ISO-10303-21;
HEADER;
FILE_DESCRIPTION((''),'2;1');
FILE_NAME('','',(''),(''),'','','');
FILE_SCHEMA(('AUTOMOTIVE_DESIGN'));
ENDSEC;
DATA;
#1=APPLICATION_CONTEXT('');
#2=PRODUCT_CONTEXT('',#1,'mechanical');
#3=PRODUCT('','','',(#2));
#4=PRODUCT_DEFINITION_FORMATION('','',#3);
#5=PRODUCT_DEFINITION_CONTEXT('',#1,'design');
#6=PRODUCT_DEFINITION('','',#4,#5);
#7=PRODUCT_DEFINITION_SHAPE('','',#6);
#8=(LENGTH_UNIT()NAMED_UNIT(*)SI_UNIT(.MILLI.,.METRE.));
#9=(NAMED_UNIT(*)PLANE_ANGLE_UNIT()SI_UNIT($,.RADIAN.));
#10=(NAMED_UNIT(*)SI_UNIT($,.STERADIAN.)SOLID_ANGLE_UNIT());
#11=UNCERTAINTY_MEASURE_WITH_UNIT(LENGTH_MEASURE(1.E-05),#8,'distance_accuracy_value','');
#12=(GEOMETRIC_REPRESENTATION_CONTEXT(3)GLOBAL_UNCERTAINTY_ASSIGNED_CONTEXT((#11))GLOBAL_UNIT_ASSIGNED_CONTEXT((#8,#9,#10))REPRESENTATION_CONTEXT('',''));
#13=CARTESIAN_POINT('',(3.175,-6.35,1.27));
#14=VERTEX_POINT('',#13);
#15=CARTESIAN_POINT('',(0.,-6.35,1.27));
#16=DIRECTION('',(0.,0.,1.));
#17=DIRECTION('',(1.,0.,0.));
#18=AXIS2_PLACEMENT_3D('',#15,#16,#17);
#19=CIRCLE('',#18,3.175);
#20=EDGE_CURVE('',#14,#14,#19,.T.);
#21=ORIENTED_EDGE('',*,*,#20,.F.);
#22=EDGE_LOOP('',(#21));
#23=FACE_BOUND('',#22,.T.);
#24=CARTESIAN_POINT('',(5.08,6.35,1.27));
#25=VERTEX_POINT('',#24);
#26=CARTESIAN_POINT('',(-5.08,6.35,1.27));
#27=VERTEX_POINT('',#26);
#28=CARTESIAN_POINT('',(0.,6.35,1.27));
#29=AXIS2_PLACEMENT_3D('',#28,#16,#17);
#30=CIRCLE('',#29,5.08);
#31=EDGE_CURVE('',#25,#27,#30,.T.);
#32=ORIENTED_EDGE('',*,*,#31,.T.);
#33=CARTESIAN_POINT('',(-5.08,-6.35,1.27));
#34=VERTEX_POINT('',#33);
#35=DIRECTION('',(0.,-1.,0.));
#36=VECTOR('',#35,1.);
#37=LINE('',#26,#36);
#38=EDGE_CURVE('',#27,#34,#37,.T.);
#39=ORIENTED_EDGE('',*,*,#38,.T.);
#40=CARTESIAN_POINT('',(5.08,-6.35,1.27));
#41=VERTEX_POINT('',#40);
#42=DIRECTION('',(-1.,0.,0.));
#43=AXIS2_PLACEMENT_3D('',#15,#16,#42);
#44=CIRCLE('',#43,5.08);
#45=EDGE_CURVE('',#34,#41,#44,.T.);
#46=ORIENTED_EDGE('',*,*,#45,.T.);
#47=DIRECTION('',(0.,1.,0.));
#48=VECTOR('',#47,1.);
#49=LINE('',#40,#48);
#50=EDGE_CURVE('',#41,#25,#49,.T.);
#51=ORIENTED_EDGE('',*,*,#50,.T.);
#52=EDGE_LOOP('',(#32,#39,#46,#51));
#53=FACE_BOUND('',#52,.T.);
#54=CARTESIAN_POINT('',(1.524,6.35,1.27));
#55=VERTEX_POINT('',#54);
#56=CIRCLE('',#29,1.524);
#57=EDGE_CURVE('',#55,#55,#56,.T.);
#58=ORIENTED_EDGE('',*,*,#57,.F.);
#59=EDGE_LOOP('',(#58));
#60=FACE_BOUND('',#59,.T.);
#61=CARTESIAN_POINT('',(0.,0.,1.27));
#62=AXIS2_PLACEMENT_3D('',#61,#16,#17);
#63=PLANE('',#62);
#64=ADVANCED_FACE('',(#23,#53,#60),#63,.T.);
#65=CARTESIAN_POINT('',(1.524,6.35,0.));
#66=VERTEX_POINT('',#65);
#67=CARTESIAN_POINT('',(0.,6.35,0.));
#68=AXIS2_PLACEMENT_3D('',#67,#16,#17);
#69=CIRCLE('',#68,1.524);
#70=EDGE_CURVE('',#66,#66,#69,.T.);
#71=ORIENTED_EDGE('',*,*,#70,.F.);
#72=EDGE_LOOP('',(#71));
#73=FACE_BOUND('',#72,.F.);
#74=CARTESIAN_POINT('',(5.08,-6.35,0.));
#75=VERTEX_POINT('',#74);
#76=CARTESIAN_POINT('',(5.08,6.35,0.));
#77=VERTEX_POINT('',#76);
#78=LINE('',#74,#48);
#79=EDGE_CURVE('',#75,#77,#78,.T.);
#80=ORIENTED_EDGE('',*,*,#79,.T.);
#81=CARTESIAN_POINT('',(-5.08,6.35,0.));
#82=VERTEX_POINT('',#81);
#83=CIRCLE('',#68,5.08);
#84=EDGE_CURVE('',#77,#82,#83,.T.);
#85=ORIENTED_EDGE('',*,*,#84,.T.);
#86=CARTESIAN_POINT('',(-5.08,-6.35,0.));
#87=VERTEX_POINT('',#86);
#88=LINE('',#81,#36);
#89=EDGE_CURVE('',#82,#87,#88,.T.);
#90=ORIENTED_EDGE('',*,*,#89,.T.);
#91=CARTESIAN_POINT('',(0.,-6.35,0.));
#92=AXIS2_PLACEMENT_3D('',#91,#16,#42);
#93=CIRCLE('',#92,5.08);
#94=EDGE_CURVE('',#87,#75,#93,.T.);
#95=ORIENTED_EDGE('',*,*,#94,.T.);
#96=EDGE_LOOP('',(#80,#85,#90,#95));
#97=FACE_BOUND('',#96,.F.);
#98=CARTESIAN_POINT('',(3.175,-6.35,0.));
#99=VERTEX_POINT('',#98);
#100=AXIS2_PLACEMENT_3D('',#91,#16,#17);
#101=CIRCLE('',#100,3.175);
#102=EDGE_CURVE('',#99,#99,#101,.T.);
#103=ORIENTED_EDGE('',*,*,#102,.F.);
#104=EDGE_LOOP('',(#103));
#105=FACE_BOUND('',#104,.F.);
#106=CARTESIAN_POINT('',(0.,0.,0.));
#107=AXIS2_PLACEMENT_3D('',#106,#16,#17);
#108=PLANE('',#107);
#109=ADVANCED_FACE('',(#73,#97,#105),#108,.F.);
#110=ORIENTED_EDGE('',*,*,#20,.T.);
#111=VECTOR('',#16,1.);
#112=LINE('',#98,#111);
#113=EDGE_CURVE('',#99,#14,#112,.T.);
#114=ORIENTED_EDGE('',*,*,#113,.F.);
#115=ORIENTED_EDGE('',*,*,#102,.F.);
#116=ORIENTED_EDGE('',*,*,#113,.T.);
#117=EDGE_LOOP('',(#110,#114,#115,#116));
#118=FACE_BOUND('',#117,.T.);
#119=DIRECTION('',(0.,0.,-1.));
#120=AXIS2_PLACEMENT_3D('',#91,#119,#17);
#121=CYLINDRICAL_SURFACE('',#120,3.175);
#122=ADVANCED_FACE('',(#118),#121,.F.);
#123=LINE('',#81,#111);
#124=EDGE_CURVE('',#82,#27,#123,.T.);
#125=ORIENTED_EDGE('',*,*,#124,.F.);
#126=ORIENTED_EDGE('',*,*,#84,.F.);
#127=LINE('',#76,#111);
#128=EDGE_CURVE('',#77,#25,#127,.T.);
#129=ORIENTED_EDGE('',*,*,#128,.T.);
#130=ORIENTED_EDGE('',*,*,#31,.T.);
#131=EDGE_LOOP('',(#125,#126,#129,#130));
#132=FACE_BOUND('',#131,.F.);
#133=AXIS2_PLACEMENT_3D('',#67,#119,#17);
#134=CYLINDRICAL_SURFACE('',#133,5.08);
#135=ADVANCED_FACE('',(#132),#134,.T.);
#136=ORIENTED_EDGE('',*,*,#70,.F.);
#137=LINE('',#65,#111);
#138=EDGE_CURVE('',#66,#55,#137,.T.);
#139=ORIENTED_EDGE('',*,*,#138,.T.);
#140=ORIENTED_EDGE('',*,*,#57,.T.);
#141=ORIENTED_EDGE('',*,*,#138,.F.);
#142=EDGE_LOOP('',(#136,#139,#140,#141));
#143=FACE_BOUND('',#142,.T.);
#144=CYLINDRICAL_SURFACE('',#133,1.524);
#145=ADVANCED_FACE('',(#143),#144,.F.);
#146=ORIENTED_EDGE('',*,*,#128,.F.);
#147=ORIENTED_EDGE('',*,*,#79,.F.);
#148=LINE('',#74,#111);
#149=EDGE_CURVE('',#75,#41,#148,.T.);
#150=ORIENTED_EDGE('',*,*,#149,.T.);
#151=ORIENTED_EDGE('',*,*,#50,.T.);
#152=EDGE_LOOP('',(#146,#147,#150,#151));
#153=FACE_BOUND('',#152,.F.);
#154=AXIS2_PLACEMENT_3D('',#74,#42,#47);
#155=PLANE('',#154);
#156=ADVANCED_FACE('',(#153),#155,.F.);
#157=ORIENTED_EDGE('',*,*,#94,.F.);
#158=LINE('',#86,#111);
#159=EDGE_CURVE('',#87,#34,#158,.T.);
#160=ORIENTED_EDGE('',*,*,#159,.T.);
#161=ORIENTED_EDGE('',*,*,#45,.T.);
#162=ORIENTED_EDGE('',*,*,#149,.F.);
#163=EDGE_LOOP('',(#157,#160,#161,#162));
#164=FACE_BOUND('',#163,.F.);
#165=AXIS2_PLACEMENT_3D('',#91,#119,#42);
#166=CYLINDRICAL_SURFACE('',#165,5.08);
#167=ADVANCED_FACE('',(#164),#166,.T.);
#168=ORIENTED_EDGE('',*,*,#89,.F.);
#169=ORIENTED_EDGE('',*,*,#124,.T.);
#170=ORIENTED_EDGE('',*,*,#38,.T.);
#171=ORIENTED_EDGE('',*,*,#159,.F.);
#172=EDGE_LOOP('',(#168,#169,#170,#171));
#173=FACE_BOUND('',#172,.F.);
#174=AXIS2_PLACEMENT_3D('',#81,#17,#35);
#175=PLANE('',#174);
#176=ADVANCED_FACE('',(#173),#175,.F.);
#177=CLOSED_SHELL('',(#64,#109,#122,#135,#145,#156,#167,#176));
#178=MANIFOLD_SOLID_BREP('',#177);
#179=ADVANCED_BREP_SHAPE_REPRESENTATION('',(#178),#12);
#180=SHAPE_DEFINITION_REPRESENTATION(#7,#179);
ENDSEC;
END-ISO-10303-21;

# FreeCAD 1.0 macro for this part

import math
import FreeCAD as App
import Part
import Sketcher
from FreeCAD import Vector
Q = App.Units.Quantity

doc = App.newDocument("Part")
params = doc.addObject("Spreadsheet::Sheet", "Params")
for row, (alias, value) in enumerate([
    ("sketch1_radius", "0.2 in"),
    ("sketch1_diameter", "0.25 in"),
    ("sketch1_diameter2", "0.12 in"),
    ("sketch1_height", "0.5 in"),
    ("pad1_length", "0.05 in"),
], start=1):
    params.set(f"A{row}", alias)
    params.set(f"B{row}", "=" + value)
    params.setAlias(f"B{row}", alias)

body = doc.addObject("PartDesign::Body", "Body")

sketch1 = body.newObject("Sketcher::SketchObject", "Sketch")
sketch1.AttachmentSupport = (doc.getObject("XY_Plane"), [""])
sketch1.MapMode = "FlatFace"
sketch1.addGeometry(Part.ArcOfCircle(Part.Circle(Vector(0, 6.3, 0), Vector(0, 0, 1), 5.1), math.radians(0), math.radians(180)), False)
sketch1.addGeometry(Part.LineSegment(Vector(-5.1, 6.3, 0), Vector(-5.1, -6.3, 0)), False)
sketch1.addGeometry(Part.ArcOfCircle(Part.Circle(Vector(0, -6.3, 0), Vector(0, 0, 1), 5.1), math.radians(180), math.radians(360)), False)
sketch1.addGeometry(Part.LineSegment(Vector(5.1, -6.3, 0), Vector(5.1, 6.3, 0)), False)
sketch1.addGeometry(Part.Circle(Vector(0, -6.3, 0), Vector(0, 0, 1), 3.2), False)
sketch1.addGeometry(Part.Circle(Vector(0, 6.3, 0), Vector(0, 0, 1), 1.5), False)
sketch1.addConstraint(Sketcher.Constraint("Tangent", 0, 2, 1, 1))
sketch1.addConstraint(Sketcher.Constraint("Tangent", 1, 2, 2, 1))
sketch1.addConstraint(Sketcher.Constraint("Tangent", 2, 2, 3, 1))
sketch1.addConstraint(Sketcher.Constraint("Tangent", 3, 2, 0, 1))
sketch1.addConstraint(Sketcher.Constraint("Vertical", 1))
sketch1.addConstraint(Sketcher.Constraint("Vertical", 3))
sketch1.addConstraint(Sketcher.Constraint("Coincident", 4, 3, 2, 3))
sketch1.addConstraint(Sketcher.Constraint("Coincident", 5, 3, 0, 3))
sketch1.addConstraint(Sketcher.Constraint("Symmetric", 0, 3, 2, 3, -1, 1))
sketch1.addConstraint(Sketcher.Constraint("Radius", 0, Q("0.2 in")))
sketch1.addConstraint(Sketcher.Constraint("Diameter", 4, Q("0.25 in")))
sketch1.addConstraint(Sketcher.Constraint("Diameter", 5, Q("0.12 in")))
sketch1.addConstraint(Sketcher.Constraint("DistanceY", 1, 2, 1, 1, Q("0.5 in")))
sketch1.setExpression("Constraints[9]", "Params.sketch1_radius")
sketch1.setExpression("Constraints[10]", "Params.sketch1_diameter")
sketch1.setExpression("Constraints[11]", "Params.sketch1_diameter2")
sketch1.setExpression("Constraints[12]", "Params.sketch1_height")
pad1 = body.newObject("PartDesign::Pad", "Pad")
pad1.Profile = sketch1
pad1.setExpression("Length", "Params.pad1_length")

doc.recompute()
